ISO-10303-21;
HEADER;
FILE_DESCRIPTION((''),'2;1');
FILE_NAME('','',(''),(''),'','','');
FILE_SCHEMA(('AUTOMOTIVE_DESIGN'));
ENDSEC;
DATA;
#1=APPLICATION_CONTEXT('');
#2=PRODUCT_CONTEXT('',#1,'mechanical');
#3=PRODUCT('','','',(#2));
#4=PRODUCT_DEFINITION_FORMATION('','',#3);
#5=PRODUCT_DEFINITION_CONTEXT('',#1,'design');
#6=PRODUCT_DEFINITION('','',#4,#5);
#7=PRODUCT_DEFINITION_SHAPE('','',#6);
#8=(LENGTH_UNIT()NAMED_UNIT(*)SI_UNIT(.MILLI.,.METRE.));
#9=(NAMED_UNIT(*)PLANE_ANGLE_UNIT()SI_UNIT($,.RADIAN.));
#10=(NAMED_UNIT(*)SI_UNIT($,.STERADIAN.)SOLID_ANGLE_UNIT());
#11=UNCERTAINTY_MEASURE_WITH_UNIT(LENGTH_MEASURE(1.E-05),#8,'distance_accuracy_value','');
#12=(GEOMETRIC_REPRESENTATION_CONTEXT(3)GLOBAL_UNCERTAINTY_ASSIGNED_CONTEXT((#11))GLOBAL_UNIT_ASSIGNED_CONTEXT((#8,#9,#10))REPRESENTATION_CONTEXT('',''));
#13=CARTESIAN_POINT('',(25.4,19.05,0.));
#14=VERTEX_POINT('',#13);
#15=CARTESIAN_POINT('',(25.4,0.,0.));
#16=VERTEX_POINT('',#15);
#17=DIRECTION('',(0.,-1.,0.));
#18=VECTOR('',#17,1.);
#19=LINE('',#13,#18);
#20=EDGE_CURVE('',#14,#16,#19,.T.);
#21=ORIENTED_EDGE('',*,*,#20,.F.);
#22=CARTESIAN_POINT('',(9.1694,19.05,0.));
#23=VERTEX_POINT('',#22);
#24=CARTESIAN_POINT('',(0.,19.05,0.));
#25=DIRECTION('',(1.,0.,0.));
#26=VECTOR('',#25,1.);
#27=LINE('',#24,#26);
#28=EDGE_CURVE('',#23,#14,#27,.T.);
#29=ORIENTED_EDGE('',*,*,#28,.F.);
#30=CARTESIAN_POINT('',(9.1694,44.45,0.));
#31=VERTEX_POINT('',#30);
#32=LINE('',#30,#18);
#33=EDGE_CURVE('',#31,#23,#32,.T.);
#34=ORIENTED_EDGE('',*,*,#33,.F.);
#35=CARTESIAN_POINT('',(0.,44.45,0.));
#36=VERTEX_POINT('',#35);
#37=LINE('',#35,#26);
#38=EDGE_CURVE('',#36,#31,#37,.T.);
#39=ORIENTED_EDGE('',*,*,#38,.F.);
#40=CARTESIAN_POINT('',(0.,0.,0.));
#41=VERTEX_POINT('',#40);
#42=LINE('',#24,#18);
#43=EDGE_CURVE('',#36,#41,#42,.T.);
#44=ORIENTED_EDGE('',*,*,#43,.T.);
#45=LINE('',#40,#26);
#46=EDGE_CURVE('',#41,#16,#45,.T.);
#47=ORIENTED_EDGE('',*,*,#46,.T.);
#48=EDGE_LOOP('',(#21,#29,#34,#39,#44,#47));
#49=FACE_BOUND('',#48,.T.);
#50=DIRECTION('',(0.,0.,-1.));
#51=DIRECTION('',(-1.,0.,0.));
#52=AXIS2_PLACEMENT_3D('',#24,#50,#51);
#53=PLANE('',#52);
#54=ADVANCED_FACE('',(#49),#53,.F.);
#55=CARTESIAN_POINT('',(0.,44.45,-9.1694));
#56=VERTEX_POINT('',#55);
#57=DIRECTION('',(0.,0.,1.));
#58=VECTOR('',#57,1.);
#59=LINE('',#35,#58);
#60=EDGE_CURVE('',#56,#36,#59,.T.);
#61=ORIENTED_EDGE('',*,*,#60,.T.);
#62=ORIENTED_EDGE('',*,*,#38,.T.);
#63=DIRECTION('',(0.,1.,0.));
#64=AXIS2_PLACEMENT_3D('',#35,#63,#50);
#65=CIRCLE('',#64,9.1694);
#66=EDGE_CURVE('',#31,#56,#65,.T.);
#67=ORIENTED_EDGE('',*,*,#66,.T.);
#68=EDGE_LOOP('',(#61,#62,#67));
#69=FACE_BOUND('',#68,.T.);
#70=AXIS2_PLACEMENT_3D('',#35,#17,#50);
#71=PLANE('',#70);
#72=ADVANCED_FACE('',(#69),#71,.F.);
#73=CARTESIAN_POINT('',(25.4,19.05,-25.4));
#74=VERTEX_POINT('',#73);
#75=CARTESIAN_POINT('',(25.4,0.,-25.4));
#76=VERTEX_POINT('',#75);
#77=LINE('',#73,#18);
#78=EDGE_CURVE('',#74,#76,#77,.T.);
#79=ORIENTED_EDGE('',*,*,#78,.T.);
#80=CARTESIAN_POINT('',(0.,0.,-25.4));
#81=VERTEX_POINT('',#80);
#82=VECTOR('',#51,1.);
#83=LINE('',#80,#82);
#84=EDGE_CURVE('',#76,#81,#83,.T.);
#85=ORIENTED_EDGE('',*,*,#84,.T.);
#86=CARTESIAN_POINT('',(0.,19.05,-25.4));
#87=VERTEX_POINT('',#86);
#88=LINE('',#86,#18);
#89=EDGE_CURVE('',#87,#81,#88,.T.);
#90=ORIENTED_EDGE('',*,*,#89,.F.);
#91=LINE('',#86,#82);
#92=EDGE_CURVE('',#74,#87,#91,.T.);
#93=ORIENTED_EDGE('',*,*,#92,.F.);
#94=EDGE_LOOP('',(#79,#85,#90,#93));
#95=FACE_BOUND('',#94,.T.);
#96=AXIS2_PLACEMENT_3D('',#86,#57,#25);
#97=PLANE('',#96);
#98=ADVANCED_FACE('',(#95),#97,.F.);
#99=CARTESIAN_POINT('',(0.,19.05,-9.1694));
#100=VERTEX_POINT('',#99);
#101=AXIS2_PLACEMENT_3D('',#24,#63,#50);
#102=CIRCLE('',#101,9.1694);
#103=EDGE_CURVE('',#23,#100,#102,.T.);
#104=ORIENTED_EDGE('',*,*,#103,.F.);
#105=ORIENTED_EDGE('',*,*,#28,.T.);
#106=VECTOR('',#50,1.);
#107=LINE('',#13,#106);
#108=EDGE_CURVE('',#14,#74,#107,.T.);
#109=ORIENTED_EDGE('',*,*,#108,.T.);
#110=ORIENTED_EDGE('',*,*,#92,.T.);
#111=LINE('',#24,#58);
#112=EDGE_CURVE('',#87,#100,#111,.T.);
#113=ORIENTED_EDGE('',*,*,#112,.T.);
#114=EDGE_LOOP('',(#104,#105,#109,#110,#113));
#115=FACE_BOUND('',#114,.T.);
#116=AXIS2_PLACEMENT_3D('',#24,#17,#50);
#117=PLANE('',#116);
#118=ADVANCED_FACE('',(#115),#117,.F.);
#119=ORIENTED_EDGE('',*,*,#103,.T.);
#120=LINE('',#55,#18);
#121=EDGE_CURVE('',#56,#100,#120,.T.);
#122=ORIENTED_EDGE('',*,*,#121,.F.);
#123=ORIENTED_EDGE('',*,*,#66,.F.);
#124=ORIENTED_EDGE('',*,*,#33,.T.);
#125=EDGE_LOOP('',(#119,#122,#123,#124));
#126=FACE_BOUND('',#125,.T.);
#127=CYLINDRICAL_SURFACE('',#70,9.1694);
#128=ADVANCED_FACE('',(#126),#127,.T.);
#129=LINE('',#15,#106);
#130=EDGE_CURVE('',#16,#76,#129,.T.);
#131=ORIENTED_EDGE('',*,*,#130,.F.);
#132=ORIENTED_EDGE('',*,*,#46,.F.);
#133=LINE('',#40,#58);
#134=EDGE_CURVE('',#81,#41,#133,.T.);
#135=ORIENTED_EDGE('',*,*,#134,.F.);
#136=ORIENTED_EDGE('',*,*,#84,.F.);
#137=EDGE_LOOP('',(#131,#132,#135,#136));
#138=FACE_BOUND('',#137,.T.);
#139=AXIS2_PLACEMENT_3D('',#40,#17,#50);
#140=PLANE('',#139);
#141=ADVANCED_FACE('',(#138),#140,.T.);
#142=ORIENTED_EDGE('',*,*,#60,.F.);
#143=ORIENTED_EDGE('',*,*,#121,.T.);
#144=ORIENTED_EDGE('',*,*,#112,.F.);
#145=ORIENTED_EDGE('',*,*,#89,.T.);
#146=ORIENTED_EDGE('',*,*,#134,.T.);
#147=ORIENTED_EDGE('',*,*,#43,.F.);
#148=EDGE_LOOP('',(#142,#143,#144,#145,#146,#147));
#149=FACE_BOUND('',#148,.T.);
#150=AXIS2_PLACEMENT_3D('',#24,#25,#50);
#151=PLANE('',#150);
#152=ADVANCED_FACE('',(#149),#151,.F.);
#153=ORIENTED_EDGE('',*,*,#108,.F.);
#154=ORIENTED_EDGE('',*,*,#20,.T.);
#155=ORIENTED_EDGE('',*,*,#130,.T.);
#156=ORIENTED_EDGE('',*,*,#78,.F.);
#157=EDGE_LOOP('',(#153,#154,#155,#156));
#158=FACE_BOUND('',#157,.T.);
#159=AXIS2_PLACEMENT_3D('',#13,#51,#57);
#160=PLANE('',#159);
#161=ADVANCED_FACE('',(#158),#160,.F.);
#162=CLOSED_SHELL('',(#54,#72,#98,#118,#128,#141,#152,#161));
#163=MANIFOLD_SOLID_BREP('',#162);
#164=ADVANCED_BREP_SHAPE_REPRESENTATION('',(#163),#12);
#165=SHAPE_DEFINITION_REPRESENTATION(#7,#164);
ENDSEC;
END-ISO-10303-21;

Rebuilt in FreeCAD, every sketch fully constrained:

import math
import FreeCAD as App
import Part
import Sketcher
Q = App.Units.Quantity

doc = App.newDocument("Part")
body = doc.addObject("PartDesign::Body", "Body")

# Sketch on XZ plane
sketch1 = doc.addObject("Sketcher::SketchObject", "Sketch")
body.addObject(sketch1)
sketch1.AttachmentSupport = (doc.XZ_Plane, [""])
sketch1.MapMode = "FlatFace"
sketch1.addGeometry([
    Part.LineSegment(App.Vector(0, -25, 0), App.Vector(0, 0, 0)),
    Part.LineSegment(App.Vector(0, 0, 0), App.Vector(25, 0, 0)),
    Part.LineSegment(App.Vector(25, 0, 0), App.Vector(25, -25, 0)),
    Part.LineSegment(App.Vector(25, -25, 0), App.Vector(0, -25, 0)),
], False)
sketch1.addConstraint([
    Sketcher.Constraint("Coincident", 0, 2, 1, 1),
    Sketcher.Constraint("Coincident", 1, 2, 2, 1),
    Sketcher.Constraint("Coincident", 2, 2, 3, 1),
    Sketcher.Constraint("Coincident", 3, 2, 0, 1),
    Sketcher.Constraint("Vertical", 0),
    Sketcher.Constraint("Horizontal", 1),
    Sketcher.Constraint("Vertical", 2),
    Sketcher.Constraint("Horizontal", 3),
    Sketcher.Constraint("Coincident", 0, 2, -1, 1),
    Sketcher.Constraint("Equal", 3, 0),
    Sketcher.Constraint("DistanceX", 1, 1, 1, 2, Q("1 in")),
])
pad1 = doc.addObject("PartDesign::Pad", "Pad")
body.addObject(pad1)
pad1.Profile = sketch1
pad1.Length = Q("0.75 in")
pad1.Reversed = True

# Sketch on XZ plane
sketch2 = doc.addObject("Sketcher::SketchObject", "Sketch001")
body.addObject(sketch2)
sketch2.AttachmentSupport = (doc.XZ_Plane, [""])
sketch2.MapMode = "FlatFace"
sketch2.AttachmentOffset = App.Placement(App.Vector(0, 0, -0.75 * 25.4), App.Rotation())
sketch2.addGeometry([
    Part.LineSegment(App.Vector(0, -9, 0), App.Vector(0, 0, 0)),
    Part.LineSegment(App.Vector(0, 0, 0), App.Vector(9, 0, 0)),
    Part.ArcOfCircle(Part.Circle(App.Vector(0, 0, 0), App.Vector(0, 0, 1), 9), math.radians(-90), math.radians(0)),
], False)
sketch2.addConstraint([
    Sketcher.Constraint("Coincident", 0, 2, 1, 1),
    Sketcher.Constraint("Coincident", 1, 2, 2, 2),
    Sketcher.Constraint("Coincident", 2, 1, 0, 1),
    Sketcher.Constraint("Vertical", 0),
    Sketcher.Constraint("Horizontal", 1),
    Sketcher.Constraint("Coincident", 2, 3, -1, 1),
    Sketcher.Constraint("Coincident", 0, 2, -1, 1),
    Sketcher.Constraint("Radius", 2, Q("0.361 in")),
])
pad2 = doc.addObject("PartDesign::Pad", "Pad001")
body.addObject(pad2)
pad2.Profile = sketch2
pad2.Length = Q("1 in")
pad2.Reversed = True

doc.recompute()
